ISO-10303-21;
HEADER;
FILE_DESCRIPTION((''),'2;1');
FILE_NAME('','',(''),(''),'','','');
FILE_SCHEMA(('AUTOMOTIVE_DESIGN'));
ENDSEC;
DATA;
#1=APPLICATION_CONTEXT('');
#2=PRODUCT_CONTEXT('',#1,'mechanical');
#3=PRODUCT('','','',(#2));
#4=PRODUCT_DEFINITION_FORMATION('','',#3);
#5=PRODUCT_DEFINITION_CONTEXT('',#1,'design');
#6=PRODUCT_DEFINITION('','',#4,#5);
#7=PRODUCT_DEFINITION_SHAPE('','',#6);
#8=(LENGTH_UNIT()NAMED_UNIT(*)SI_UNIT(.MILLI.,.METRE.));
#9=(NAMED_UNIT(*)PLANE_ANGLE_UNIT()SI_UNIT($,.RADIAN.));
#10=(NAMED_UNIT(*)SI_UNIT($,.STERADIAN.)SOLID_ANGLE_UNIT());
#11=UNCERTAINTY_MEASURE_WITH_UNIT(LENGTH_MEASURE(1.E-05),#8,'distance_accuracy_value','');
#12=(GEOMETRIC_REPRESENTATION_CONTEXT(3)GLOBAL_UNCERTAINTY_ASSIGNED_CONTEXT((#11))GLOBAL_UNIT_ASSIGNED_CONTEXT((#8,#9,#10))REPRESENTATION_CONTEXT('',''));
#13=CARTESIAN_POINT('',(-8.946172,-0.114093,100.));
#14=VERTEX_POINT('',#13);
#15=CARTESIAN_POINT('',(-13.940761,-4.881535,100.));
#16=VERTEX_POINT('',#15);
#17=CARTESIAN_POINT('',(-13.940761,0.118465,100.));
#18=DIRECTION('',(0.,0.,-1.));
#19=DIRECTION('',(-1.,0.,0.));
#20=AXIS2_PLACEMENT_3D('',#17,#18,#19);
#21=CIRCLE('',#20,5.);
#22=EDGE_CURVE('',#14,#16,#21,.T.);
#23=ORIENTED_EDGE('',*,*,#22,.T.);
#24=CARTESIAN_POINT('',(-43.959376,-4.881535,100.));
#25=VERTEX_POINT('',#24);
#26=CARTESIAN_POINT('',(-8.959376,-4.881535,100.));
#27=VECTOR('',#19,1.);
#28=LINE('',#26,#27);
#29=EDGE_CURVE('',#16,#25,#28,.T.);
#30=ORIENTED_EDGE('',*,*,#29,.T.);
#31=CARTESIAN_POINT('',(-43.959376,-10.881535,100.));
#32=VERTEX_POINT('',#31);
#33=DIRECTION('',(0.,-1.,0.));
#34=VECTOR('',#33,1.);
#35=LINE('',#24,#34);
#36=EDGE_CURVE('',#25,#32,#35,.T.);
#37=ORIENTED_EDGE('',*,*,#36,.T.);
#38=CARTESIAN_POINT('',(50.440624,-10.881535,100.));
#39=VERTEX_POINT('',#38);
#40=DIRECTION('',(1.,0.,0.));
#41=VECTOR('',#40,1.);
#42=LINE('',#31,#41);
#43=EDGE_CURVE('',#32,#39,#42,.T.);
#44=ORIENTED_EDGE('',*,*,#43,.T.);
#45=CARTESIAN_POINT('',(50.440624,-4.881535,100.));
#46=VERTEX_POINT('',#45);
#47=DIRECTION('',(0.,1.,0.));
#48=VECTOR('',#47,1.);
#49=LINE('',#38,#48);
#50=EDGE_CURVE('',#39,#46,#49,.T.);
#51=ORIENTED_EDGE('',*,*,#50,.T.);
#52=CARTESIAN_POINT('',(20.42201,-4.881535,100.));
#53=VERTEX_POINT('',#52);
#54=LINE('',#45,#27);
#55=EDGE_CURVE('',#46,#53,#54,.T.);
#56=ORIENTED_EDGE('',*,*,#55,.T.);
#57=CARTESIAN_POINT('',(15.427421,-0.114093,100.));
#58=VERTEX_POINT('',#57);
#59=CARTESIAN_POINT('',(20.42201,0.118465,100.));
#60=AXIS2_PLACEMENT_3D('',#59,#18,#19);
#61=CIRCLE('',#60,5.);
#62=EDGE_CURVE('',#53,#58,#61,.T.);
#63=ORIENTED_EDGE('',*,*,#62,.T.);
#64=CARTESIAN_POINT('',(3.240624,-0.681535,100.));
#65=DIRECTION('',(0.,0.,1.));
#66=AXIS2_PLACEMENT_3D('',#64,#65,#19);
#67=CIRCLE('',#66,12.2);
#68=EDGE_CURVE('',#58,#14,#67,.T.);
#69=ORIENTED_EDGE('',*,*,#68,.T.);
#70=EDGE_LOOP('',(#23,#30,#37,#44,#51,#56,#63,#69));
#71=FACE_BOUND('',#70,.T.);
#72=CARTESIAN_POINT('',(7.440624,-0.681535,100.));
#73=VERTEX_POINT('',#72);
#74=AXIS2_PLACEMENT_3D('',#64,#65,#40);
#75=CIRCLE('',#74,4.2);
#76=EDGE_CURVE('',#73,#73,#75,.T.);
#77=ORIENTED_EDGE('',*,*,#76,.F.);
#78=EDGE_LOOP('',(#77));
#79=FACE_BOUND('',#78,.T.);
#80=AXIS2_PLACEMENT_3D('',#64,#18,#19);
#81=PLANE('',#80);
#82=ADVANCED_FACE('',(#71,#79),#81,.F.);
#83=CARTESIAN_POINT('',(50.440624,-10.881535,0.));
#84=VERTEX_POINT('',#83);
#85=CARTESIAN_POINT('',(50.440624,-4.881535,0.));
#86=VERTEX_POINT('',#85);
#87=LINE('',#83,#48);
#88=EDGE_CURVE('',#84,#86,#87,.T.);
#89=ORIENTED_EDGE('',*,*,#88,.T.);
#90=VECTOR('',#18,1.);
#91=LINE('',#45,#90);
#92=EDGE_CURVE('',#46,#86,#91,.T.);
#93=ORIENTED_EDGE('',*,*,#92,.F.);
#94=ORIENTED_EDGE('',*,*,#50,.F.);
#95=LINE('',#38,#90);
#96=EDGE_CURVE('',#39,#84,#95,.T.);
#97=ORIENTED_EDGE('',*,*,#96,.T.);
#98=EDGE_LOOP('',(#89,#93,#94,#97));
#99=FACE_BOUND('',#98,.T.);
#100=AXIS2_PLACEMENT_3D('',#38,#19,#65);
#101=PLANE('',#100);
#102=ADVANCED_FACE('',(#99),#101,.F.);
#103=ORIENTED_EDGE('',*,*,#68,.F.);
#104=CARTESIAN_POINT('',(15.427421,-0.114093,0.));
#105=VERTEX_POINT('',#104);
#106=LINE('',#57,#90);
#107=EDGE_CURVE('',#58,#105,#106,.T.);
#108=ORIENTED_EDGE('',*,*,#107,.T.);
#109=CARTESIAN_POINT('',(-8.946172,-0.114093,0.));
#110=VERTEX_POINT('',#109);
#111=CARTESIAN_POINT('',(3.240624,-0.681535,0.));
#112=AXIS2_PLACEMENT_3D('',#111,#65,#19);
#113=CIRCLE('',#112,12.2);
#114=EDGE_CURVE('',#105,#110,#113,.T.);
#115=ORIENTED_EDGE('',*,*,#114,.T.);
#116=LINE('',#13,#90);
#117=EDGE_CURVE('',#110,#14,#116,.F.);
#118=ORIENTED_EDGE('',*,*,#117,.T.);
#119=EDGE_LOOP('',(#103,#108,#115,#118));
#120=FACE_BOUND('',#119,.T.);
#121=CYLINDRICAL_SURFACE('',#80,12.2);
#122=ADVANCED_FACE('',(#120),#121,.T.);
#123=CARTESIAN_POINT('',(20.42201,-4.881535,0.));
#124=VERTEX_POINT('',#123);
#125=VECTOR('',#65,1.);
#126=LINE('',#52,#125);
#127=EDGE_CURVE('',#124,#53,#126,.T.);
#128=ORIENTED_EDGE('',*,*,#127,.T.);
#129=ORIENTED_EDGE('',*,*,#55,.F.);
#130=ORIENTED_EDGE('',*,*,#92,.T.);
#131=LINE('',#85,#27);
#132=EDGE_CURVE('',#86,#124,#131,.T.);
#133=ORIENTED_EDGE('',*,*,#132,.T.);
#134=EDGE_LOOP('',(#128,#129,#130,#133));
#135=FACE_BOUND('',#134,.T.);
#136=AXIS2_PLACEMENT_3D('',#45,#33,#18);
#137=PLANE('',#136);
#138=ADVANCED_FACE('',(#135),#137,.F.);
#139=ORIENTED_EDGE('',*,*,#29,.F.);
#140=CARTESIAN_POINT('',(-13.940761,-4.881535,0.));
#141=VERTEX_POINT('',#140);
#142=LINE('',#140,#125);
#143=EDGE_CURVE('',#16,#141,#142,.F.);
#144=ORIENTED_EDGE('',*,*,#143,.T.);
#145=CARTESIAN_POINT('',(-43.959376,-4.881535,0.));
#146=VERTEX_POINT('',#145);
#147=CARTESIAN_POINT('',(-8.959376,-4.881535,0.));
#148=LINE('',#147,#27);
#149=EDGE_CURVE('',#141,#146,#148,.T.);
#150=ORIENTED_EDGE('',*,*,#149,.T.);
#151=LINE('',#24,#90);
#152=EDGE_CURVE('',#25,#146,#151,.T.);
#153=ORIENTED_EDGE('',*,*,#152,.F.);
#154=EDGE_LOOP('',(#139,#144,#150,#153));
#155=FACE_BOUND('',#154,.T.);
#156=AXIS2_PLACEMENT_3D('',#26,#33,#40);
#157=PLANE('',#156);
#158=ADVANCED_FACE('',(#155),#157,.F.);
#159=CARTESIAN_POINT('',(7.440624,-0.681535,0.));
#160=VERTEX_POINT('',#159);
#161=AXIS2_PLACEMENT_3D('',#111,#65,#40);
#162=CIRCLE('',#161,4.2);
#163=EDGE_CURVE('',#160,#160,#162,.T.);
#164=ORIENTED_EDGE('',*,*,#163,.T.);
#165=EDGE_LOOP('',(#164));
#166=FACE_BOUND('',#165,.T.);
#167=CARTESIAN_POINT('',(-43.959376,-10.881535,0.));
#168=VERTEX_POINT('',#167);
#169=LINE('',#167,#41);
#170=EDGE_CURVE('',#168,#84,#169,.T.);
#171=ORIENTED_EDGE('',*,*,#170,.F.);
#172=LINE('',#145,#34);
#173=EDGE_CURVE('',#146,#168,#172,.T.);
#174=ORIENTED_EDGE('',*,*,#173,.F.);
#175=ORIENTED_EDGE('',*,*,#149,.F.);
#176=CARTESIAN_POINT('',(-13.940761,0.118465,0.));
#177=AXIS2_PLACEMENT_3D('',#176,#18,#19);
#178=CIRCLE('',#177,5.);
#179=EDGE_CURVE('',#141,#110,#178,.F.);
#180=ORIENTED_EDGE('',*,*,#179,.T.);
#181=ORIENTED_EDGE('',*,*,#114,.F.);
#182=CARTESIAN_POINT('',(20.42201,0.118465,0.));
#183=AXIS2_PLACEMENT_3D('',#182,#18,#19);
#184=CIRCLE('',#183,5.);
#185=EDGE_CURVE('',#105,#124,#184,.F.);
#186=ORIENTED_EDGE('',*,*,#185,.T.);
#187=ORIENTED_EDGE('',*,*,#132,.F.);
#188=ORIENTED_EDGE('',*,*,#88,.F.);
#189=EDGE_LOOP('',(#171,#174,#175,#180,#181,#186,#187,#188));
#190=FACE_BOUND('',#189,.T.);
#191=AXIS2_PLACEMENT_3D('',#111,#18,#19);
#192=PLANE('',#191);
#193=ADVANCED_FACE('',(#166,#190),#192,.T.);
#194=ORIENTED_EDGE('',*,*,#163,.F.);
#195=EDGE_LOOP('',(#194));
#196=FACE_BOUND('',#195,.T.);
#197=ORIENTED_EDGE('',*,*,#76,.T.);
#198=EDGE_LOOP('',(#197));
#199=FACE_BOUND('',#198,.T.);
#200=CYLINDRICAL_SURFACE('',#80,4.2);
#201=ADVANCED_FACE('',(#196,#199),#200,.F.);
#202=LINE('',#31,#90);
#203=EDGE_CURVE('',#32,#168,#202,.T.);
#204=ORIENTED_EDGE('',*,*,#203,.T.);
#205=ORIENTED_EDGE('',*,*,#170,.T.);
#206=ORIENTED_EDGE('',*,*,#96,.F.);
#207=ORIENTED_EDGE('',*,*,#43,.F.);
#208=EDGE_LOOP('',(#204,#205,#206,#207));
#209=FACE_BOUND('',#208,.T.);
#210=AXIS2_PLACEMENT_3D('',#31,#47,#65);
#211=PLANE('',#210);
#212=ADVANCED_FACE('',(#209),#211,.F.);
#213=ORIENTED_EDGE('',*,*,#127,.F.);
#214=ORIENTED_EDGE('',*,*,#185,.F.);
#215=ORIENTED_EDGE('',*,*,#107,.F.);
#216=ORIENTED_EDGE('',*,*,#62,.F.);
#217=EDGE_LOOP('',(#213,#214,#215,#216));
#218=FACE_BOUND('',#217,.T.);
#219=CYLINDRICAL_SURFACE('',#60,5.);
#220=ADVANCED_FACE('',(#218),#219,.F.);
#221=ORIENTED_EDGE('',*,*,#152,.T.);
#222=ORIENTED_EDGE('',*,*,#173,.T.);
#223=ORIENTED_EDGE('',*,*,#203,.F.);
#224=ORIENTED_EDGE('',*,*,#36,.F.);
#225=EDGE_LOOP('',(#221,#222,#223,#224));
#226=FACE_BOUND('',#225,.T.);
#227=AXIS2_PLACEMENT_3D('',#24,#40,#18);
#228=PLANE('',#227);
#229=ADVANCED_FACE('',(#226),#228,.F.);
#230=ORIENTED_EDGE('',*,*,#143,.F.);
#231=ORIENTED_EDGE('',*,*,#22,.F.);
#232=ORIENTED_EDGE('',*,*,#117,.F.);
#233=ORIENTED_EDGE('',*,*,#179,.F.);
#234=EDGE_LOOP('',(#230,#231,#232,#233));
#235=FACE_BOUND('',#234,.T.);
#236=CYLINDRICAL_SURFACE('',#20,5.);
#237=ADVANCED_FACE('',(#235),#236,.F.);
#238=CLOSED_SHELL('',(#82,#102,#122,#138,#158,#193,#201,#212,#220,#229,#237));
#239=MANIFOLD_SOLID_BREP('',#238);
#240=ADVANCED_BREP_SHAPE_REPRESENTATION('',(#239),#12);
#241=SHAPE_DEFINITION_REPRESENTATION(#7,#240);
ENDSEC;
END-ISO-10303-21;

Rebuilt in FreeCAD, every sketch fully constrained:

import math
import FreeCAD as App
import Part
import Sketcher

V = App.Vector
Q = App.Units.Quantity


def edges_at(feature, points):
    """Names of the edges that pass closest to the given points."""
    edges = feature.Shape.Edges
    near = lambda p: min(range(len(edges)), key=lambda i: edges[i].distToShape(Part.Vertex(*p))[0])
    return sorted({f"Edge{near(p) + 1}" for p in points})

doc = App.newDocument("Part")
body = doc.addObject("PartDesign::Body", "Body")

sketch1 = doc.addObject("Sketcher::SketchObject", "Sketch")
body.addObject(sketch1)
sketch1.AttachmentSupport = (doc.XY_Plane, [""])
sketch1.MapMode = "FlatFace"
sketch1.addGeometry(Part.LineSegment(V(15.4, -4.9, 0), V(15.4, -0.7, 0)), False)
sketch1.addGeometry(Part.ArcOfCircle(Part.Circle(V(3.2, -0.7, 0), V(0, 0, 1), 12.2), math.radians(0), math.radians(180)), False)
sketch1.addGeometry(Part.LineSegment(V(-9, -0.7, 0), V(-9, -4.9, 0)), False)
sketch1.addGeometry(Part.LineSegment(V(-9, -4.9, 0), V(-44, -4.9, 0)), False)
sketch1.addGeometry(Part.LineSegment(V(-44, -4.9, 0), V(-44, -10.9, 0)), False)
sketch1.addGeometry(Part.LineSegment(V(-44, -10.9, 0), V(50.4, -10.9, 0)), False)
sketch1.addGeometry(Part.LineSegment(V(50.4, -10.9, 0), V(50.4, -4.9, 0)), False)
sketch1.addGeometry(Part.LineSegment(V(50.4, -4.9, 0), V(15.4, -4.9, 0)), False)
sketch1.addGeometry(Part.Circle(V(3.2, -0.7, 0), V(0, 0, 1), 4.2), False)
sketch1.addConstraint(Sketcher.Constraint("Tangent", 0, 2, 1, 1))
sketch1.addConstraint(Sketcher.Constraint("Tangent", 1, 2, 2, 1))
sketch1.addConstraint(Sketcher.Constraint("Coincident", 2, 2, 3, 1))
sketch1.addConstraint(Sketcher.Constraint("Coincident", 3, 2, 4, 1))
sketch1.addConstraint(Sketcher.Constraint("Coincident", 4, 2, 5, 1))
sketch1.addConstraint(Sketcher.Constraint("Coincident", 5, 2, 6, 1))
sketch1.addConstraint(Sketcher.Constraint("Coincident", 6, 2, 7, 1))
sketch1.addConstraint(Sketcher.Constraint("Coincident", 7, 2, 0, 1))
sketch1.addConstraint(Sketcher.Constraint("Vertical", 0))
sketch1.addConstraint(Sketcher.Constraint("Vertical", 2))
sketch1.addConstraint(Sketcher.Constraint("Horizontal", 3))
sketch1.addConstraint(Sketcher.Constraint("Vertical", 4))
sketch1.addConstraint(Sketcher.Constraint("Horizontal", 5))
sketch1.addConstraint(Sketcher.Constraint("Vertical", 6))
sketch1.addConstraint(Sketcher.Constraint("Horizontal", 7))
sketch1.addConstraint(Sketcher.Constraint("Coincident", 8, 3, 1, 3))
sketch1.addConstraint(Sketcher.Constraint("Horizontal", 3, 2, 6, 2))
sketch1.addConstraint(Sketcher.Constraint("Equal", 3, 7))
sketch1.addConstraint(Sketcher.Constraint("Diameter", 8, Q("8.4 mm")))
sketch1.addConstraint(Sketcher.Constraint("Radius", 1, Q("12.2 mm")))
sketch1.addConstraint(Sketcher.Constraint("DistanceX", 3, 2, 3, 1, Q("35 mm")))
sketch1.addConstraint(Sketcher.Constraint("DistanceY", 4, 2, 4, 1, Q("6 mm")))
sketch1.addConstraint(Sketcher.Constraint("DistanceY", 0, 1, 0, 2, Q("4.2 mm")))
sketch1.addConstraint(Sketcher.Constraint("DistanceX", -1, 1, 1, 3, Q("3.240624 mm")))
sketch1.addConstraint(Sketcher.Constraint("DistanceY", 1, 3, -1, 1, Q("0.681535 mm")))
pad1 = doc.addObject("PartDesign::Pad", "Pad")
body.addObject(pad1)
pad1.Profile = sketch1
pad1.Length = 100
doc.recompute()

fillet = doc.addObject("PartDesign::Fillet", "Fillet")
body.addObject(fillet)
fillet.Base = (pad1, edges_at(pad1, [(-8.959, -4.882, 50), (15.441, -4.882, 50)]))
fillet.Radius = 5

doc.recompute()
